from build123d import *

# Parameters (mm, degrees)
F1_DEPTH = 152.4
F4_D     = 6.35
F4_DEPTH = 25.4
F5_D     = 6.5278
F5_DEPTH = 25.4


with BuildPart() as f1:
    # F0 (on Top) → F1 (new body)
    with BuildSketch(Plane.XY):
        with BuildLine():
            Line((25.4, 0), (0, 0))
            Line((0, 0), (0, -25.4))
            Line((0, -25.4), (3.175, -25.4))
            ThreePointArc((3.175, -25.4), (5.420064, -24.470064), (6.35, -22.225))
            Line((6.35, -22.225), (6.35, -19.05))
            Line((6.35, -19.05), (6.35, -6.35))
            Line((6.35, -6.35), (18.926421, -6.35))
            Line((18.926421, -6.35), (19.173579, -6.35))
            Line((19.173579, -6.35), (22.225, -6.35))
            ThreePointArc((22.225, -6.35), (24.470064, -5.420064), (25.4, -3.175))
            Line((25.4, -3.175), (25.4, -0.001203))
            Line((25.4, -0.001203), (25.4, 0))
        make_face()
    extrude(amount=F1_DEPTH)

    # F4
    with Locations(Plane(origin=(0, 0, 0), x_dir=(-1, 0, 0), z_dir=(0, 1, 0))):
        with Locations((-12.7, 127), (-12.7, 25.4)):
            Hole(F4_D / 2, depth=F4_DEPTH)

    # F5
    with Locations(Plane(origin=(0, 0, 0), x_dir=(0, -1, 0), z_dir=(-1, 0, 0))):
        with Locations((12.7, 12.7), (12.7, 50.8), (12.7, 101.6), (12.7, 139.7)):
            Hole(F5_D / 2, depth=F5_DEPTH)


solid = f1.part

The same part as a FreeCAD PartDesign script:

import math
import FreeCAD as App
import Part
import Sketcher
from FreeCAD import Vector
Q = App.Units.Quantity

doc = App.newDocument("Part")
body = doc.addObject("PartDesign::Body", "Body")

# Sketch on XY plane
sketch1 = body.newObject("Sketcher::SketchObject", "Sketch")
sketch1.AttachmentSupport = (doc.getObject("XY_Plane"), [""])
sketch1.MapMode = "FlatFace"
sketch1.addGeometry(Part.LineSegment(Vector(25.4, 0, 0), Vector(0, 0, 0)), False)
sketch1.addGeometry(Part.LineSegment(Vector(0, 0, 0), Vector(0, -25.4, 0)), False)
sketch1.addGeometry(Part.LineSegment(Vector(0, -25.4, 0), Vector(3.2, -25.4, 0)), False)
sketch1.addGeometry(Part.ArcOfCircle(Part.Circle(Vector(3.2, -22.2, 0), Vector(0, 0, 1), 3.2), math.radians(-90), math.radians(0)), False)
sketch1.addGeometry(Part.LineSegment(Vector(6.3, -22.2, 0), Vector(6.3, -6.3, 0)), False)
sketch1.addGeometry(Part.LineSegment(Vector(6.3, -6.3, 0), Vector(22.2, -6.3, 0)), False)
sketch1.addGeometry(Part.ArcOfCircle(Part.Circle(Vector(22.2, -3.2, 0), Vector(0, 0, 1), 3.2), math.radians(-90), math.radians(0)), False)
sketch1.addGeometry(Part.LineSegment(Vector(25.4, -3.2, 0), Vector(25.4, 0, 0)), False)
sketch1.addConstraint(Sketcher.Constraint("Coincident", 0, 2, 1, 1))
sketch1.addConstraint(Sketcher.Constraint("Coincident", 1, 2, 2, 1))
sketch1.addConstraint(Sketcher.Constraint("Tangent", 2, 2, 3, 1))
sketch1.addConstraint(Sketcher.Constraint("Tangent", 3, 2, 4, 1))
sketch1.addConstraint(Sketcher.Constraint("Coincident", 4, 2, 5, 1))
sketch1.addConstraint(Sketcher.Constraint("Tangent", 5, 2, 6, 1))
sketch1.addConstraint(Sketcher.Constraint("Tangent", 6, 2, 7, 1))
sketch1.addConstraint(Sketcher.Constraint("Coincident", 7, 2, 0, 1))
sketch1.addConstraint(Sketcher.Constraint("Horizontal", 0))
sketch1.addConstraint(Sketcher.Constraint("Vertical", 1))
sketch1.addConstraint(Sketcher.Constraint("Horizontal", 2))
sketch1.addConstraint(Sketcher.Constraint("Vertical", 4))
sketch1.addConstraint(Sketcher.Constraint("Horizontal", 5))
sketch1.addConstraint(Sketcher.Constraint("Vertical", 7))
sketch1.addConstraint(Sketcher.Constraint("Coincident", 0, 2, -1, 1))
sketch1.addConstraint(Sketcher.Constraint("Equal", 3, 6))
sketch1.addConstraint(Sketcher.Constraint("Equal", 0, 1))
sketch1.addConstraint(Sketcher.Constraint("Equal", 5, 4))
sketch1.addConstraint(Sketcher.Constraint("DistanceX", 0, 2, 0, 1, Q("1 in")))
sketch1.addConstraint(Sketcher.Constraint("Radius", 3, Q("0.125 in")))
sketch1.addConstraint(Sketcher.Constraint("DistanceX", 2, 1, 2, 2, Q("0.125 in")))
pad1 = body.newObject("PartDesign::Pad", "Pad")
pad1.Profile = sketch1
pad1.Length = Q("6 in")

# Sketch on XZ plane
sketch2 = body.newObject("Sketcher::SketchObject", "Sketch001")
sketch2.AttachmentSupport = (doc.getObject("XZ_Plane"), [""])
sketch2.MapMode = "FlatFace"
sketch2.addGeometry(Part.Circle(Vector(12.7, 127, 0), Vector(0, 0, 1), 3.2), False)
sketch2.addGeometry(Part.Circle(Vector(12.7, 25.4, 0), Vector(0, 0, 1), 3.2), False)
sketch2.addConstraint(Sketcher.Constraint("Equal", 0, 1))
sketch2.addConstraint(Sketcher.Constraint("Vertical", 0, 3, 1, 3))
sketch2.addConstraint(Sketcher.Constraint("Diameter", 0, Q("0.25 in")))
sketch2.addConstraint(Sketcher.Constraint("DistanceY", -1, 1, 0, 3, Q("5 in")))
sketch2.addConstraint(Sketcher.Constraint("DistanceY", -1, 1, 1, 3, Q("1 in")))
sketch2.addConstraint(Sketcher.Constraint("DistanceX", -1, 1, 0, 3, Q("0.5 in")))
doc.recompute()
hole = body.newObject("PartDesign::Hole", "Hole")
hole.Profile = sketch2
hole.ThreadType = "None"
hole.Diameter = Q("0.25 in")
hole.DepthType = "Dimension"
hole.Depth = Q("1 in")
hole.DrillPoint = "Flat"
hole.Reversed = True

# Sketch on YZ plane
sketch3 = body.newObject("Sketcher::SketchObject", "Sketch002")
sketch3.AttachmentSupport = (doc.getObject("YZ_Plane"), [""])
sketch3.MapMode = "FlatFace"
sketch3.addGeometry(Part.Circle(Vector(-12.7, 12.7, 0), Vector(0, 0, 1), 3.3), False)
sketch3.addGeometry(Part.Circle(Vector(-12.7, 50.8, 0), Vector(0, 0, 1), 3.3), False)
sketch3.addGeometry(Part.Circle(Vector(-12.7, 101.6, 0), Vector(0, 0, 1), 3.3), False)
sketch3.addGeometry(Part.Circle(Vector(-12.7, 139.7, 0), Vector(0, 0, 1), 3.3), False)
sketch3.addConstraint(Sketcher.Constraint("Equal", 0, 1))
sketch3.addConstraint(Sketcher.Constraint("Equal", 1, 2))
sketch3.addConstraint(Sketcher.Constraint("Equal", 2, 3))
sketch3.addConstraint(Sketcher.Constraint("Vertical", 0, 3, 1, 3))
sketch3.addConstraint(Sketcher.Constraint("Vertical", 1, 3, 2, 3))
sketch3.addConstraint(Sketcher.Constraint("Vertical", 2, 3, 3, 3))
sketch3.addConstraint(Sketcher.Constraint("Diameter", 0, Q("0.257 in")))
sketch3.addConstraint(Sketcher.Constraint("DistanceY", -1, 1, 1, 3, Q("2 in")))
sketch3.addConstraint(Sketcher.Constraint("DistanceY", -1, 1, 2, 3, Q("4 in")))
sketch3.addConstraint(Sketcher.Constraint("DistanceY", 0, 3, 3, 3, Q("5 in")))
sketch3.addConstraint(Sketcher.Constraint("DistanceX", 0, 3, -1, 1, Q("0.5 in")))
sketch3.addConstraint(Sketcher.Constraint("DistanceY", -1, 1, 0, 3, Q("0.5 in")))
doc.recompute()
hole2 = body.newObject("PartDesign::Hole", "Hole001")
hole2.Profile = sketch3
hole2.ThreadType = "None"
hole2.Diameter = Q("0.257 in")
hole2.DepthType = "Dimension"
hole2.Depth = Q("1 in")
hole2.DrillPoint = "Flat"
hole2.Reversed = True

doc.recompute()
